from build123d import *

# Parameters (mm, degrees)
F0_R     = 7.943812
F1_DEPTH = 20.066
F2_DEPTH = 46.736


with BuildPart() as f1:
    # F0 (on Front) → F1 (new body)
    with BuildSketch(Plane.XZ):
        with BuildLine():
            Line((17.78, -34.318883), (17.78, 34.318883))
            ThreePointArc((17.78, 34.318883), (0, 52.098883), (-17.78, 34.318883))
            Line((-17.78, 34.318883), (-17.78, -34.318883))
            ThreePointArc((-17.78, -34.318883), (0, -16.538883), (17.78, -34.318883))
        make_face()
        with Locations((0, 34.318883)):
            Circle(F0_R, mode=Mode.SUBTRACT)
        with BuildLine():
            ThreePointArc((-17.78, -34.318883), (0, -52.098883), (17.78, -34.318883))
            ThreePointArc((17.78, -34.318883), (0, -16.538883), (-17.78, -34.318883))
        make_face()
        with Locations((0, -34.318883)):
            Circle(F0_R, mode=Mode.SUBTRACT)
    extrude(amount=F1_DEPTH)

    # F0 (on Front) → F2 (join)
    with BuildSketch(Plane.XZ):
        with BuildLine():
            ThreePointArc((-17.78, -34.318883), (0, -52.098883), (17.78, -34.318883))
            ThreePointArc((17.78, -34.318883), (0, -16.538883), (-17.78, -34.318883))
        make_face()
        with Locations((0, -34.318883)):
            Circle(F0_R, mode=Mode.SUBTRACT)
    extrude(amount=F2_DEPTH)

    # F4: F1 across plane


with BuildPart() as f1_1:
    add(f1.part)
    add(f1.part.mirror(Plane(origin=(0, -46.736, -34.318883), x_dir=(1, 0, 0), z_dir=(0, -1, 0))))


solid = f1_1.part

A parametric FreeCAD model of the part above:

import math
import FreeCAD as App
import Part
import Sketcher
from FreeCAD import Vector
Q = App.Units.Quantity

doc = App.newDocument("Part")
body = doc.addObject("PartDesign::Body", "Body")

sketch1 = body.newObject("Sketcher::SketchObject", "Sketch")
sketch1.AttachmentSupport = (doc.getObject("XZ_Plane"), [""])
sketch1.MapMode = "FlatFace"
sketch1.addGeometry(Part.LineSegment(Vector(18, -34, 0), Vector(18, 34, 0)), False)
sketch1.addGeometry(Part.ArcOfCircle(Part.Circle(Vector(0, 34, 0), Vector(0, 0, 1), 18), math.radians(0), math.radians(180)), False)
sketch1.addGeometry(Part.LineSegment(Vector(-18, 34, 0), Vector(-18, -34, 0)), False)
sketch1.addGeometry(Part.ArcOfCircle(Part.Circle(Vector(0, -34, 0), Vector(0, 0, 1), 18), math.radians(180), math.radians(360)), False)
sketch1.addGeometry(Part.Circle(Vector(0, -34, 0), Vector(0, 0, 1), 8), False)
sketch1.addGeometry(Part.Circle(Vector(0, 34, 0), Vector(0, 0, 1), 8), False)
sketch1.addConstraint(Sketcher.Constraint("Tangent", 0, 2, 1, 1))
sketch1.addConstraint(Sketcher.Constraint("Tangent", 1, 2, 2, 1))
sketch1.addConstraint(Sketcher.Constraint("Tangent", 2, 2, 3, 1))
sketch1.addConstraint(Sketcher.Constraint("Tangent", 3, 2, 0, 1))
sketch1.addConstraint(Sketcher.Constraint("Vertical", 0))
sketch1.addConstraint(Sketcher.Constraint("Vertical", 2))
sketch1.addConstraint(Sketcher.Constraint("Coincident", 4, 3, 3, 3))
sketch1.addConstraint(Sketcher.Constraint("Coincident", 5, 3, 1, 3))
sketch1.addConstraint(Sketcher.Constraint("Equal", 4, 5))
sketch1.addConstraint(Sketcher.Constraint("Symmetric", 1, 3, 3, 3, -1, 1))
sketch1.addConstraint(Sketcher.Constraint("Radius", 1, Q("0.7 in")))
sketch1.addConstraint(Sketcher.Constraint("Diameter", 4, 15.887624))
sketch1.addConstraint(Sketcher.Constraint("DistanceY", 0, 1, 0, 2, 68.637766))
pad1 = body.newObject("PartDesign::Pad", "Pad")
pad1.Profile = sketch1
pad1.Length = Q("0.79 in")

sketch2 = body.newObject("Sketcher::SketchObject", "Sketch001")
sketch2.AttachmentSupport = (doc.getObject("XZ_Plane"), [""])
sketch2.MapMode = "FlatFace"
sketch2.addGeometry(Part.Circle(Vector(0, -34, 0), Vector(0, 0, 1), 18), False)
sketch2.addGeometry(Part.Circle(Vector(0, -34, 0), Vector(0, 0, 1), 8), False)
sketch2.addConstraint(Sketcher.Constraint("Coincident", 1, 3, 0, 3))
sketch2.addConstraint(Sketcher.Constraint("PointOnObject", 0, 3, -2))
sketch2.addConstraint(Sketcher.Constraint("Diameter", 0, Q("1.4 in")))
sketch2.addConstraint(Sketcher.Constraint("Diameter", 1, 15.887624))
sketch2.addConstraint(Sketcher.Constraint("DistanceY", 0, 3, -1, 1, 34.318883))
pad2 = body.newObject("PartDesign::Pad", "Pad001")
pad2.Profile = sketch2
pad2.Length = Q("1.84 in")
body2 = doc.addObject("PartDesign::Body", "Body001")
doc.recompute()

body2.BaseFeature = body
doc.recompute()

mirroring = doc.addObject("Part::Mirroring", "Mirroring")
mirroring.Source = body
mirroring.Base = Vector(0, -46.736, -34.318883)
mirroring.Normal = Vector(0, -1, 0)
body3 = doc.addObject("PartDesign::Body", "Body002")
body3.BaseFeature = mirroring
boolean = body2.newObject("PartDesign::Boolean", "Boolean")
boolean.Type = "Fuse"
boolean.addObjects([body3])
doc.recompute()
mirroring.Visibility = False

doc.recompute()
